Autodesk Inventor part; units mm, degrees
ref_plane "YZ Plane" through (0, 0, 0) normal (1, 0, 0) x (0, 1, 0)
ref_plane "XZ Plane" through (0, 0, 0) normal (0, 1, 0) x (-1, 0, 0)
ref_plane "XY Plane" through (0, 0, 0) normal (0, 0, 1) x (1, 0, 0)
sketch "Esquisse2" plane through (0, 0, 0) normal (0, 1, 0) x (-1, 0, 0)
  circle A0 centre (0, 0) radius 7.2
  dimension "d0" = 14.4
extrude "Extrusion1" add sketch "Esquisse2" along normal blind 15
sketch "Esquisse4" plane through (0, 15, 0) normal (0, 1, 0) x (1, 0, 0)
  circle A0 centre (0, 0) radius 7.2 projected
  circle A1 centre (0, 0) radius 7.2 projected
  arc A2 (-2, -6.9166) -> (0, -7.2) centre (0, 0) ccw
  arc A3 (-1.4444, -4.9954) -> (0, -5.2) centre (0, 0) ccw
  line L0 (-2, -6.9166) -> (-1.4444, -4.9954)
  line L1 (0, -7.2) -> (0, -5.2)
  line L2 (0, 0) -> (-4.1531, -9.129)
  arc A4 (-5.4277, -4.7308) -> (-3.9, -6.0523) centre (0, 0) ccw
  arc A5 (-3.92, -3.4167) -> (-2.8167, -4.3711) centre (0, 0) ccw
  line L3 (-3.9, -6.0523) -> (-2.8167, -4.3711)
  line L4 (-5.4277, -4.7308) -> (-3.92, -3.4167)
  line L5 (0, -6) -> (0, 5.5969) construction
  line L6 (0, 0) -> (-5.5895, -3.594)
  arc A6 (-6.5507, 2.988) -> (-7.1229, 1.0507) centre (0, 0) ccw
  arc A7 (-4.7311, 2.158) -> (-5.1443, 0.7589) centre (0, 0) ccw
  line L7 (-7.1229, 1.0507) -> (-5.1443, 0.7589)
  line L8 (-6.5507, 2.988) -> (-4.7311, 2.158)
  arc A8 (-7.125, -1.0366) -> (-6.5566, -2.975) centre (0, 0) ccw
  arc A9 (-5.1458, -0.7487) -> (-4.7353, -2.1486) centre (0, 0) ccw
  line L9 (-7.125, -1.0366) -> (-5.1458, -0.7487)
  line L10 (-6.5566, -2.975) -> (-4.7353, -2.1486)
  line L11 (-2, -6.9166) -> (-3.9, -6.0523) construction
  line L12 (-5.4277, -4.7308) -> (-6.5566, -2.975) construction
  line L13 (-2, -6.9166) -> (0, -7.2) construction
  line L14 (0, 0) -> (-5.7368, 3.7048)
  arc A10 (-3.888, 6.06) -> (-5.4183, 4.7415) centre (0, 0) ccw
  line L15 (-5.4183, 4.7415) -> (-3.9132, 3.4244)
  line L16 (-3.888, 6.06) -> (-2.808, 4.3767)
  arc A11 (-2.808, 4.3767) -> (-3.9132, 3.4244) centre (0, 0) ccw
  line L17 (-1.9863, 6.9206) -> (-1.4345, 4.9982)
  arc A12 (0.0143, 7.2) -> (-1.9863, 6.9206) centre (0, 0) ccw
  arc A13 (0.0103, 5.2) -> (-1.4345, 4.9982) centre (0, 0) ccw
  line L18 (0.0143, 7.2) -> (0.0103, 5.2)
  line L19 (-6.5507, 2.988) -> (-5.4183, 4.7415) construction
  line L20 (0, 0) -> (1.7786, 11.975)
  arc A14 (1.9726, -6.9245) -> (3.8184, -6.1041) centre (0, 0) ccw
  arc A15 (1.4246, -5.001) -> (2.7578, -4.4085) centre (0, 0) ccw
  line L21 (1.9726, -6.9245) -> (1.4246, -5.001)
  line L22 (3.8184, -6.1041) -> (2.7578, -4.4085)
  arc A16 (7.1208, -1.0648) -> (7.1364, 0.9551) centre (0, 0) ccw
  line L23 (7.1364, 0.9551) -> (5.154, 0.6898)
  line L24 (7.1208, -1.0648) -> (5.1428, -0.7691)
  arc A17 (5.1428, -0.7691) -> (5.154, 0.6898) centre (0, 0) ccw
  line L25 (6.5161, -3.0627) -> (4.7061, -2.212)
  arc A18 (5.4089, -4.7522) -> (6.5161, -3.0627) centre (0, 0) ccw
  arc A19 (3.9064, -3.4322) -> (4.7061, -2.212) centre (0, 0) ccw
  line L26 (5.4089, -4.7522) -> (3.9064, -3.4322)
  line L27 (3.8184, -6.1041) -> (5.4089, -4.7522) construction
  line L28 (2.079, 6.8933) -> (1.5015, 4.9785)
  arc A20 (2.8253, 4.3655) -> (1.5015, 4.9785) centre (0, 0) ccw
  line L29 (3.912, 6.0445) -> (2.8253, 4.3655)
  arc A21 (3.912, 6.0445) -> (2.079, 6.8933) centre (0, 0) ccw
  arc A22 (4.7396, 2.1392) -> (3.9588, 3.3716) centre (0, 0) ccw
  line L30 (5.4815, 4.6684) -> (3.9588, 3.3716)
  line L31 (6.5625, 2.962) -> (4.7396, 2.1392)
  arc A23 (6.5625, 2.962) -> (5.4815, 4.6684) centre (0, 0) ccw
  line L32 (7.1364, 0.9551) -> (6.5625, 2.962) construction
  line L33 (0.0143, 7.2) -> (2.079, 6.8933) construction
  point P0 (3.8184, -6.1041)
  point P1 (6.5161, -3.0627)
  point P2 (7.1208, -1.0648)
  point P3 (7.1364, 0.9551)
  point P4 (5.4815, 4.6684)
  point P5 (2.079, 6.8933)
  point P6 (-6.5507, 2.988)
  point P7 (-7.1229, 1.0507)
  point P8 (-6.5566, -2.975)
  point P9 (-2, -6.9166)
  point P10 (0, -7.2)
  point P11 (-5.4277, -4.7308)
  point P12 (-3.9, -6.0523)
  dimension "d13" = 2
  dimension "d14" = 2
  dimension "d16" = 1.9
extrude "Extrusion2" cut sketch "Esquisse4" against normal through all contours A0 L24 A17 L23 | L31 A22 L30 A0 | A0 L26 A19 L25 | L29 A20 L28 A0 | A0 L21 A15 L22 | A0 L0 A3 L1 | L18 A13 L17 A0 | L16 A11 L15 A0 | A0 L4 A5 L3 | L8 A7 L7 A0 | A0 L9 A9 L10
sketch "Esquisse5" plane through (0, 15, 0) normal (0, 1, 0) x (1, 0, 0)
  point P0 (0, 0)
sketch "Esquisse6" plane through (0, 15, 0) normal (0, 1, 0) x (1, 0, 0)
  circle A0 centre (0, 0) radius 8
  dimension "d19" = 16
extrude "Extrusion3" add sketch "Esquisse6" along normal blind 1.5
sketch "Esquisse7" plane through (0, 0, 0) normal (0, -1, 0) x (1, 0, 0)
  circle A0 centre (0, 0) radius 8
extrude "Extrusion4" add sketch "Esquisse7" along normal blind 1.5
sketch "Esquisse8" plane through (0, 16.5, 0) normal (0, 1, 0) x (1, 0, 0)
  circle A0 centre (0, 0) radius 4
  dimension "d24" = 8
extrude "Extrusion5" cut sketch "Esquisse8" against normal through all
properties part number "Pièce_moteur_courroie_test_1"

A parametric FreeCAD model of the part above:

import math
import FreeCAD as App
import Part
import Sketcher
from FreeCAD import Vector
Q = App.Units.Quantity

doc = App.newDocument("Part")
body = doc.addObject("PartDesign::Body", "Body")

# Sketch on XZ plane
sketch1 = doc.addObject("Sketcher::SketchObject", "Sketch")
body.addObject(sketch1)
sketch1.AttachmentSupport = (doc.XZ_Plane, [""])
sketch1.MapMode = "FlatFace"
sketch1.addGeometry(Part.Circle(Vector(0, 0, 0), Vector(0, 0, 1), 7), False)
sketch1.addConstraint([
    Sketcher.Constraint("Coincident", 0, 3, -1, 1),
    Sketcher.Constraint("Diameter", 0, Q("14.4 mm")),
])
pad1 = doc.addObject("PartDesign::Pad", "Pad")
body.addObject(pad1)
pad1.Profile = sketch1
pad1.Length = 15
pad1.Reversed = True

# Sketch on XZ plane
sketch2 = doc.addObject("Sketcher::SketchObject", "Sketch001")
body.addObject(sketch2)
sketch2.AttachmentSupport = (doc.XZ_Plane, [""])
sketch2.MapMode = "FlatFace"
sketch2.AttachmentOffset = App.Placement(Vector(0, 0, -15), App.Rotation())
sketch2.addGeometry([
    Part.ArcOfCircle(Part.Circle(Vector(0, 0, 0), Vector(0, 0, 1), 7.2), math.radians(-7.622882), math.radians(8.504638)),  # 0
    Part.LineSegment(Vector(7.1364, -0.9551, 0), Vector(5.154, -0.6898, 0)),  # 1
    Part.ArcOfCircle(Part.Circle(Vector(0.001781, 0.000139, 0), Vector(0, 0, 1), 5.198209), math.radians(-7.627166), math.radians(8.50687)),  # 2
    Part.LineSegment(Vector(5.1428, 0.7691, 0), Vector(7.1208, 1.0648, 0)),  # 3
    Part.LineSegment(Vector(4.7396, -2.1392, 0), Vector(6.5625, -2.962, 0)),  # 4
    Part.ArcOfCircle(Part.Circle(Vector(0, 0, 0), Vector(0, 0, 1), 7.2), math.radians(-40.419864), math.radians(-24.29215)),  # 5
    Part.LineSegment(Vector(5.4815, -4.6684, 0), Vector(3.9588, -3.3716, 0)),  # 6
    Part.ArcOfCircle(Part.Circle(Vector(0, 0, 0), Vector(0, 0, 1), 5.199951), math.radians(-40.420114), math.radians(-24.291851)),  # 7
    Part.ArcOfCircle(Part.Circle(Vector(0, 0, 0), Vector(0, 0, 1), 7.2), math.radians(25.174482), math.radians(41.302184)),  # 8
    Part.LineSegment(Vector(6.5161, 3.0627, 0), Vector(4.7061, 2.212, 0)),  # 9
    Part.ArcOfCircle(Part.Circle(Vector(-0.00141, -0.001073, 0), Vector(0, 0, 1), 5.201763), math.radians(25.178941), math.radians(41.301473)),  # 10
    Part.LineSegment(Vector(3.9064, 3.4322, 0), Vector(5.4089, 4.7522, 0)),  # 11
    Part.LineSegment(Vector(2.8253, -4.3655, 0), Vector(3.912, -6.0445, 0)),  # 12
    Part.ArcOfCircle(Part.Circle(Vector(0, 0, 0), Vector(0, 0, 1), 7.2), math.radians(-73.216836), math.radians(-57.089058)),  # 13
    Part.LineSegment(Vector(2.079, -6.8933, 0), Vector(1.5015, -4.9785, 0)),  # 14
    Part.ArcOfCircle(Part.Circle(Vector(0, 0, 0), Vector(0, 0, 1), 5.200035), math.radians(-73.216854), math.radians(-57.089533)),  # 15
    Part.ArcOfCircle(Part.Circle(Vector(0, 0, 0), Vector(0, 0, 1), 7.2), math.radians(57.972095), math.radians(74.099202)),  # 16
    Part.LineSegment(Vector(3.8184, 6.1041, 0), Vector(2.7578, 4.4085, 0)),  # 17
    Part.ArcOfCircle(Part.Circle(Vector(-0.001408, -0.003884, 0), Vector(0, 0, 1), 5.204072), math.radians(57.980906), math.radians(74.096509)),  # 18
    Part.LineSegment(Vector(1.4246, 5.001, 0), Vector(1.9726, 6.9245, 0)),  # 19
    Part.ArcOfCircle(Part.Circle(Vector(0, 0, 0), Vector(0, 0, 1), 7.2), math.radians(90), math.radians(106.127723)),  # 20
    Part.LineSegment(Vector(0, 7.2, 0), Vector(0, 5.2, 0)),  # 21
    Part.ArcOfCircle(Part.Circle(Vector(-0.000319, 0.001489, 0), Vector(0, 0, 1), 5.198511), math.radians(89.996483), math.radians(106.128195)),  # 22
    Part.LineSegment(Vector(-1.4444, 4.9954, 0), Vector(-2, 6.9166, 0)),  # 23
    Part.LineSegment(Vector(0.0103, -5.2, 0), Vector(0.0143, -7.2, 0)),  # 24
    Part.ArcOfCircle(Part.Circle(Vector(0, 0, 0), Vector(0, 0, 1), 7.2), math.radians(-106.014151), math.radians(-89.886204)),  # 25
    Part.LineSegment(Vector(-1.9863, -6.9206, 0), Vector(-1.4345, -4.9982, 0)),  # 26
    Part.ArcOfCircle(Part.Circle(Vector(-0.000104, -0.00152, 0), Vector(0, 0, 1), 5.198491), math.radians(-106.017173), math.radians(-89.88533)),  # 27
    Part.LineSegment(Vector(-2.808, -4.3767, 0), Vector(-3.888, -6.06, 0)),  # 28
    Part.ArcOfCircle(Part.Circle(Vector(0, 0, 0), Vector(0, 0, 1), 7.2), math.radians(-138.811155), math.radians(-122.683588)),  # 29
    Part.LineSegment(Vector(-5.4183, -4.7415, 0), Vector(-3.9132, -3.4244, 0)),  # 30
    Part.ArcOfCircle(Part.Circle(Vector(-0.002089, -0.002801, 0), Vector(0, 0, 1), 5.19655), math.radians(-138.819245), math.radians(-122.680681)),  # 31
    Part.ArcOfCircle(Part.Circle(Vector(0, 0, 0), Vector(0, 0, 1), 7.2), math.radians(122.797049), math.radians(138.924493)),  # 32
    Part.LineSegment(Vector(-3.9, 6.0523, 0), Vector(-2.8167, 4.3711, 0)),  # 33
    Part.ArcOfCircle(Part.Circle(Vector(0, 0, 0), Vector(0, 0, 1), 5.200035), math.radians(122.797391), math.radians(138.924361)),  # 34
    Part.LineSegment(Vector(-3.92, 3.4167, 0), Vector(-5.4277, 4.7308, 0)),  # 35
    Part.LineSegment(Vector(-4.7311, -2.158, 0), Vector(-6.5507, -2.988, 0)),  # 36
    Part.ArcOfCircle(Part.Circle(Vector(0, 0, 0), Vector(0, 0, 1), 7.2), math.radians(-171.608804), math.radians(-155.480637)),  # 37
    Part.LineSegment(Vector(-7.1229, -1.0507, 0), Vector(-5.1443, -0.7589, 0)),  # 38
    Part.ArcOfCircle(Part.Circle(Vector(-0.002371, -0.000886, 0), Vector(0, 0, 1), 5.197501), math.radians(-171.613958), math.radians(-155.478853)),  # 39
    Part.ArcOfCircle(Part.Circle(Vector(0, 0, 0), Vector(0, 0, 1), 7.2), math.radians(155.594243), math.radians(171.722246)),  # 40
    Part.LineSegment(Vector(-6.5566, 2.975, 0), Vector(-4.7353, 2.1486, 0)),  # 41
    Part.ArcOfCircle(Part.Circle(Vector(-0.001244, 0.000271, 0), Vector(0, 0, 1), 5.198711), math.radians(155.591313), math.radians(171.722695)),  # 42
    Part.LineSegment(Vector(-5.1458, 0.7487, 0), Vector(-7.125, 1.0366, 0)),  # 43
], False)
sketch2.addConstraint([
    Sketcher.Constraint("Coincident", 0, 1, 1, 1),
    Sketcher.Constraint("Coincident", 1, 2, 2, 1),
    Sketcher.Constraint("Coincident", 2, 2, 3, 1),
    Sketcher.Constraint("Coincident", 3, 2, 0, 2),
    Sketcher.Constraint("Coincident", 4, 2, 5, 2),
    Sketcher.Constraint("Coincident", 5, 1, 6, 1),
    Sketcher.Constraint("Coincident", 6, 2, 7, 1),
    Sketcher.Constraint("Coincident", 7, 2, 4, 1),
    Sketcher.Constraint("Coincident", 8, 1, 9, 1),
    Sketcher.Constraint("Coincident", 9, 2, 10, 1),
    Sketcher.Constraint("Coincident", 10, 2, 11, 1),
    Sketcher.Constraint("Coincident", 11, 2, 8, 2),
    Sketcher.Constraint("Coincident", 12, 2, 13, 2),
    Sketcher.Constraint("Coincident", 13, 1, 14, 1),
    Sketcher.Constraint("Coincident", 14, 2, 15, 1),
    Sketcher.Constraint("Coincident", 15, 2, 12, 1),
    Sketcher.Constraint("Coincident", 16, 1, 17, 1),
    Sketcher.Constraint("Coincident", 17, 2, 18, 1),
    Sketcher.Constraint("Coincident", 18, 2, 19, 1),
    Sketcher.Constraint("Coincident", 19, 2, 16, 2),
    Sketcher.Constraint("Coincident", 20, 1, 21, 1),
    Sketcher.Constraint("Coincident", 21, 2, 22, 1),
    Sketcher.Constraint("Coincident", 22, 2, 23, 1),
    Sketcher.Constraint("Coincident", 23, 2, 20, 2),
    Sketcher.Constraint("Coincident", 24, 2, 25, 2),
    Sketcher.Constraint("Coincident", 25, 1, 26, 1),
    Sketcher.Constraint("Coincident", 26, 2, 27, 1),
    Sketcher.Constraint("Coincident", 27, 2, 24, 1),
    Sketcher.Constraint("Coincident", 28, 2, 29, 2),
    Sketcher.Constraint("Coincident", 29, 1, 30, 1),
    Sketcher.Constraint("Coincident", 30, 2, 31, 1),
    Sketcher.Constraint("Coincident", 31, 2, 28, 1),
    Sketcher.Constraint("Coincident", 32, 1, 33, 1),
    Sketcher.Constraint("Coincident", 33, 2, 34, 1),
    Sketcher.Constraint("Coincident", 34, 2, 35, 1),
    Sketcher.Constraint("Coincident", 35, 2, 32, 2),
    Sketcher.Constraint("Coincident", 36, 2, 37, 2),
    Sketcher.Constraint("Coincident", 37, 1, 38, 1),
    Sketcher.Constraint("Coincident", 38, 2, 39, 1),
    Sketcher.Constraint("Coincident", 39, 2, 36, 1),
    Sketcher.Constraint("Coincident", 40, 1, 41, 1),
    Sketcher.Constraint("Coincident", 41, 2, 42, 1),
    Sketcher.Constraint("Coincident", 42, 2, 43, 1),
    Sketcher.Constraint("Coincident", 43, 2, 40, 2),
    Sketcher.Constraint("Vertical", 21),
    Sketcher.Constraint("Coincident", 0, 3, -1, 1),
    Sketcher.Constraint("Coincident", 5, 3, -1, 1),
    Sketcher.Constraint("Coincident", 7, 3, -1, 1),
    Sketcher.Constraint("Coincident", 8, 3, -1, 1),
    Sketcher.Constraint("Coincident", 13, 3, -1, 1),
    Sketcher.Constraint("Coincident", 15, 3, -1, 1),
    Sketcher.Constraint("Coincident", 16, 3, -1, 1),
    Sketcher.Constraint("Coincident", 20, 3, -1, 1),
    Sketcher.Constraint("Coincident", 25, 3, -1, 1),
    Sketcher.Constraint("Coincident", 29, 3, -1, 1),
    Sketcher.Constraint("Coincident", 32, 3, -1, 1),
    Sketcher.Constraint("Coincident", 34, 3, -1, 1),
    Sketcher.Constraint("Coincident", 37, 3, -1, 1),
    Sketcher.Constraint("Coincident", 40, 3, -1, 1),
    Sketcher.Constraint("PointOnObject", 2, 3, -1),
    Sketcher.Constraint("PointOnObject", 27, 3, -2),
    Sketcher.Constraint("PointOnObject", 20, 1, -2),
    Sketcher.Constraint("DistanceY", 21, 2, 21, 1, Q("2 mm")),
    Sketcher.Constraint("Distance", 1, Q("2 mm")),
    Sketcher.Constraint("Distance", 4, Q("2 mm")),
    Sketcher.Constraint("Distance", 9, Q("2 mm")),
    Sketcher.Constraint("Distance", 11, Q("2 mm")),
    Sketcher.Constraint("Distance", 12, Q("2 mm")),
    Sketcher.Constraint("Distance", 17, Q("2 mm")),
    Sketcher.Constraint("Distance", 19, Q("2 mm")),
    Sketcher.Constraint("Distance", 23, Q("2 mm")),
    Sketcher.Constraint("Distance", 24, Q("2 mm")),
    Sketcher.Constraint("Distance", 26, Q("2 mm")),
    Sketcher.Constraint("Distance", 28, Q("2 mm")),
    Sketcher.Constraint("Distance", 30, Q("2 mm")),
    Sketcher.Constraint("Distance", 33, Q("2 mm")),
    Sketcher.Constraint("Distance", 36, Q("2 mm")),
    Sketcher.Constraint("Distance", 38, Q("2 mm")),
    Sketcher.Constraint("Distance", 41, Q("2 mm")),
    Sketcher.Constraint("Distance", 43, Q("2 mm")),
    Sketcher.Constraint("DistanceX", 23, 2, -1, 1, Q("2 mm")),
    Sketcher.Constraint("Radius", 0, Q("7.2 mm")),
    Sketcher.Constraint("Radius", 5, Q("7.2 mm")),
    Sketcher.Constraint("Radius", 8, Q("7.2 mm")),
    Sketcher.Constraint("Radius", 13, Q("7.2 mm")),
    Sketcher.Constraint("Radius", 16, Q("7.2 mm")),
    Sketcher.Constraint("Radius", 20, Q("7.2 mm")),
    Sketcher.Constraint("Radius", 25, Q("7.2 mm")),
    Sketcher.Constraint("Radius", 29, Q("7.2 mm")),
    Sketcher.Constraint("Radius", 32, Q("7.2 mm")),
    Sketcher.Constraint("Radius", 37, Q("7.2 mm")),
    Sketcher.Constraint("Radius", 40, Q("7.2 mm")),
    Sketcher.Constraint("Radius", 18, Q("5.204 mm")),
    Sketcher.Constraint("DistanceX", 32, 1, -1, 1, Q("3.9 mm")),
    Sketcher.Constraint("Radius", 2, Q("5.1982 mm")),
    Sketcher.Constraint("Radius", 10, Q("5.2018 mm")),
    Sketcher.Constraint("Radius", 22, Q("5.1985 mm")),
    Sketcher.Constraint("Radius", 31, Q("5.1965 mm")),
    Sketcher.Constraint("Radius", 39, Q("5.1975 mm")),
    Sketcher.Constraint("Radius", 42, Q("5.1987 mm")),
    Sketcher.Constraint("DistanceY", 28, 2, -1, 1, Q("6.06 mm")),
    Sketcher.Constraint("DistanceX", 34, 2, -1, 1, Q("3.92 mm")),
    Sketcher.Constraint("DistanceY", 0, 1, -1, 1, Q("0.955 mm")),
    Sketcher.Constraint("DistanceX", -1, 1, 1, 2, Q("5.154 mm")),
    Sketcher.Constraint("DistanceY", -1, 1, 2, 2, Q("0.769 mm")),
    Sketcher.Constraint("DistanceY", 4, 2, -1, 1, Q("2.962 mm")),
    Sketcher.Constraint("DistanceX", -1, 1, 8, 1, Q("6.516 mm")),
    Sketcher.Constraint("DistanceX", -1, 1, 9, 2, Q("4.706 mm")),
    Sketcher.Constraint("DistanceX", -1, 1, 11, 2, Q("5.409 mm")),
    Sketcher.Constraint("DistanceX", -1, 1, 12, 2, Q("3.912 mm")),
    Sketcher.Constraint("DistanceX", -1, 1, 13, 1, Q("2.079 mm")),
    Sketcher.Constraint("DistanceY", -1, 1, 16, 1, Q("6.104 mm")),
    Sketcher.Constraint("DistanceY", -1, 1, 18, 2, Q("5.001 mm")),
    Sketcher.Constraint("DistanceX", 31, 2, -1, 1, Q("2.808 mm")),
    Sketcher.Constraint("DistanceY", -1, 1, 33, 2, Q("4.371 mm")),
    Sketcher.Constraint("DistanceY", 36, 2, -1, 1, Q("2.988 mm")),
    Sketcher.Constraint("DistanceX", 37, 1, -1, 1, Q("7.123 mm")),
    Sketcher.Constraint("DistanceY", 38, 2, -1, 1, Q("0.759 mm")),
    Sketcher.Constraint("DistanceX", 39, 2, -1, 1, Q("4.731 mm")),
    Sketcher.Constraint("DistanceY", -1, 1, 40, 1, Q("2.975 mm")),
    Sketcher.Constraint("DistanceX", 43, 2, -1, 1, Q("7.125 mm")),
    Sketcher.Constraint("DistanceX", -1, 1, 3, 2, Q("7.1208 mm")),
    Sketcher.Constraint("DistanceX", -1, 1, 5, 1, Q("5.4815 mm")),
    Sketcher.Constraint("DistanceX", -1, 1, 6, 2, Q("3.9588 mm")),
    Sketcher.Constraint("DistanceX", -1, 1, 7, 2, Q("4.7396 mm")),
    Sketcher.Constraint("DistanceX", -1, 1, 10, 2, Q("3.9064 mm")),
    Sketcher.Constraint("DistanceX", -1, 1, 14, 2, Q("1.5015 mm")),
    Sketcher.Constraint("DistanceX", -1, 1, 15, 2, Q("2.8253 mm")),
    Sketcher.Constraint("DistanceX", -1, 1, 17, 2, Q("2.7578 mm")),
    Sketcher.Constraint("DistanceX", -1, 1, 19, 2, Q("1.9726 mm")),
    Sketcher.Constraint("DistanceX", 22, 2, -1, 1, Q("1.4444 mm")),
    Sketcher.Constraint("DistanceX", -1, 1, 24, 2, Q("0.0143 mm")),
    Sketcher.Constraint("DistanceX", 25, 1, -1, 1, Q("1.9863 mm")),
    Sketcher.Constraint("DistanceX", 26, 2, -1, 1, Q("1.4345 mm")),
    Sketcher.Constraint("DistanceX", -1, 1, 27, 2, Q("0.0103 mm")),
    Sketcher.Constraint("DistanceX", 29, 1, -1, 1, Q("5.4183 mm")),
    Sketcher.Constraint("DistanceX", 30, 2, -1, 1, Q("3.9132 mm")),
    Sketcher.Constraint("DistanceX", 35, 2, -1, 1, Q("5.4277 mm")),
    Sketcher.Constraint("DistanceX", 41, 2, -1, 1, Q("4.7353 mm")),
    Sketcher.Constraint("DistanceX", 42, 2, -1, 1, Q("5.1458 mm")),
])
pocket1 = doc.addObject("PartDesign::Pocket", "Pocket")
body.addObject(pocket1)
pocket1.Profile = sketch2
pocket1.Type = "ThroughAll"
pocket1.Reversed = True

# Sketch on XZ plane
sketch3 = doc.addObject("Sketcher::SketchObject", "Sketch002")
body.addObject(sketch3)
sketch3.AttachmentSupport = (doc.XZ_Plane, [""])
sketch3.MapMode = "FlatFace"
sketch3.AttachmentOffset = App.Placement(Vector(0, 0, -15), App.Rotation())
sketch3.addGeometry(Part.Circle(Vector(0, 0, 0), Vector(0, 0, 1), 8), False)
sketch3.addConstraint([
    Sketcher.Constraint("Coincident", 0, 3, -1, 1),
    Sketcher.Constraint("Diameter", 0, Q("16 mm")),
])
pad2 = doc.addObject("PartDesign::Pad", "Pad001")
body.addObject(pad2)
pad2.Profile = sketch3
pad2.Length = 1.5
pad2.Reversed = True

# Sketch on XZ plane
sketch4 = doc.addObject("Sketcher::SketchObject", "Sketch003")
body.addObject(sketch4)
sketch4.AttachmentSupport = (doc.XZ_Plane, [""])
sketch4.MapMode = "FlatFace"
sketch4.addGeometry(Part.Circle(Vector(0, 0, 0), Vector(0, 0, 1), 8), False)
sketch4.addConstraint([
    Sketcher.Constraint("Coincident", 0, 3, -1, 1),
    Sketcher.Constraint("Diameter", 0, Q("16 mm")),
])
pad3 = doc.addObject("PartDesign::Pad", "Pad002")
body.addObject(pad3)
pad3.Profile = sketch4
pad3.Length = 1.5

# Sketch on XZ plane
sketch5 = doc.addObject("Sketcher::SketchObject", "Sketch004")
body.addObject(sketch5)
sketch5.AttachmentSupport = (doc.XZ_Plane, [""])
sketch5.MapMode = "FlatFace"
sketch5.AttachmentOffset = App.Placement(Vector(0, 0, -16.5), App.Rotation())
sketch5.addGeometry(Part.Circle(Vector(0, 0, 0), Vector(0, 0, 1), 4), False)
sketch5.addConstraint([
    Sketcher.Constraint("Coincident", 0, 3, -1, 1),
    Sketcher.Constraint("Diameter", 0, Q("8 mm")),
])
pocket2 = doc.addObject("PartDesign::Pocket", "Pocket001")
body.addObject(pocket2)
pocket2.Profile = sketch5
pocket2.Type = "ThroughAll"
pocket2.Reversed = True

doc.recompute()
